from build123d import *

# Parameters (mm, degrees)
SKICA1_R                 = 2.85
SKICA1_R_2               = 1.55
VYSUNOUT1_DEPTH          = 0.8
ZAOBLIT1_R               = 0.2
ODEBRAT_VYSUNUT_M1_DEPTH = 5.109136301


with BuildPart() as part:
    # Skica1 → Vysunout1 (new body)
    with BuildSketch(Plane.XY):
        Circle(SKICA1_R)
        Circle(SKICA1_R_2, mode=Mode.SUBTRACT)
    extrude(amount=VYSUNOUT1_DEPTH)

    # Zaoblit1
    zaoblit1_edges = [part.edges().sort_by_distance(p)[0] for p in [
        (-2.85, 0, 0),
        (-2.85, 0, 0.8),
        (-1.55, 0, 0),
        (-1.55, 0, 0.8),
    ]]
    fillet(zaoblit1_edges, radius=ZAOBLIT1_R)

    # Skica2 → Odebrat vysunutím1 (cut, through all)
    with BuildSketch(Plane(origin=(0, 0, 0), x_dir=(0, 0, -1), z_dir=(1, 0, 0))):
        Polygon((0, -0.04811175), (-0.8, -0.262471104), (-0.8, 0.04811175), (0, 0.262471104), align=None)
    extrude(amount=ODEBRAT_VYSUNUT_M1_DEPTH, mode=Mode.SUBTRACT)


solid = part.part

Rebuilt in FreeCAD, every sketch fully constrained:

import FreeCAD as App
import Part
import Sketcher
from FreeCAD import Vector
Q = App.Units.Quantity


def edges_at(feature, points):
    """Names of the edges that pass closest to the given points."""
    edges = feature.Shape.Edges
    near = lambda p: min(range(len(edges)), key=lambda i: edges[i].distToShape(Part.Vertex(*p))[0])
    return sorted({f"Edge{near(p) + 1}" for p in points})

doc = App.newDocument("Part")
body = doc.addObject("PartDesign::Body", "Body")

sketch1 = doc.addObject("Sketcher::SketchObject", "Sketch")
body.addObject(sketch1)
sketch1.AttachmentSupport = (doc.XY_Plane, [""])
sketch1.MapMode = "FlatFace"
sketch1.addGeometry(Part.Circle(Vector(0, 0, 0), Vector(0, 0, 1), 2.9), False)
sketch1.addGeometry(Part.Circle(Vector(0, 0, 0), Vector(0, 0, 1), 1.6), False)
sketch1.addConstraint(Sketcher.Constraint("Coincident", 0, 3, -1, 1))
sketch1.addConstraint(Sketcher.Constraint("Coincident", 1, 3, -1, 1))
sketch1.addConstraint(Sketcher.Constraint("Diameter", 0, 5.7))
sketch1.addConstraint(Sketcher.Constraint("Diameter", 1, 3.1))
pad1 = doc.addObject("PartDesign::Pad", "Pad")
body.addObject(pad1)
pad1.Profile = sketch1
pad1.Length = 0.8
doc.recompute()

fillet = doc.addObject("PartDesign::Fillet", "Fillet")
body.addObject(fillet)
fillet.Base = (pad1, edges_at(pad1, [
    (-2.85, 0, 0),
    (-2.85, 0, 0.8),
    (-1.55, 0, 0),
    (-1.55, 0, 0.8),
]))
fillet.Radius = 0.2

sketch2 = doc.addObject("Sketcher::SketchObject", "Sketch001")
body.addObject(sketch2)
sketch2.AttachmentSupport = (doc.YZ_Plane, [""])
sketch2.MapMode = "FlatFace"
sketch2.addGeometry(Part.LineSegment(Vector(-0.26, 0.8, 0), Vector(-0.05, 0, 0)), False)
sketch2.addGeometry(Part.LineSegment(Vector(-0.05, 0, 0), Vector(0.26, 0, 0)), False)
sketch2.addGeometry(Part.LineSegment(Vector(0.26, 0, 0), Vector(0.05, 0.8, 0)), False)
sketch2.addGeometry(Part.LineSegment(Vector(0.05, 0.8, 0), Vector(-0.26, 0.8, 0)), False)
sketch2.addConstraint(Sketcher.Constraint("Coincident", 0, 2, 1, 1))
sketch2.addConstraint(Sketcher.Constraint("Coincident", 1, 2, 2, 1))
sketch2.addConstraint(Sketcher.Constraint("Coincident", 2, 2, 3, 1))
sketch2.addConstraint(Sketcher.Constraint("Coincident", 3, 2, 0, 1))
sketch2.addConstraint(Sketcher.Constraint("Horizontal", 1))
sketch2.addConstraint(Sketcher.Constraint("Horizontal", 3))
sketch2.addConstraint(Sketcher.Constraint("PointOnObject", 0, 2, -1))
sketch2.addConstraint(Sketcher.Constraint("Parallel", 0, 2))
sketch2.addConstraint(Sketcher.Constraint("Angle", 0, Q("-75 deg")))
sketch2.addConstraint(Sketcher.Constraint("DistanceY", -1, 1, 2, 2, 0.8))
sketch2.addConstraint(Sketcher.Constraint("DistanceX", 1, 1, 1, 2, 0.310583))
sketch2.addConstraint(Sketcher.Constraint("DistanceX", 0, 2, -1, 1, 0.048112))
pocket1 = doc.addObject("PartDesign::Pocket", "Pocket")
body.addObject(pocket1)
pocket1.Profile = sketch2
pocket1.Type = "ThroughAll"
pocket1.Reversed = True

doc.recompute()
